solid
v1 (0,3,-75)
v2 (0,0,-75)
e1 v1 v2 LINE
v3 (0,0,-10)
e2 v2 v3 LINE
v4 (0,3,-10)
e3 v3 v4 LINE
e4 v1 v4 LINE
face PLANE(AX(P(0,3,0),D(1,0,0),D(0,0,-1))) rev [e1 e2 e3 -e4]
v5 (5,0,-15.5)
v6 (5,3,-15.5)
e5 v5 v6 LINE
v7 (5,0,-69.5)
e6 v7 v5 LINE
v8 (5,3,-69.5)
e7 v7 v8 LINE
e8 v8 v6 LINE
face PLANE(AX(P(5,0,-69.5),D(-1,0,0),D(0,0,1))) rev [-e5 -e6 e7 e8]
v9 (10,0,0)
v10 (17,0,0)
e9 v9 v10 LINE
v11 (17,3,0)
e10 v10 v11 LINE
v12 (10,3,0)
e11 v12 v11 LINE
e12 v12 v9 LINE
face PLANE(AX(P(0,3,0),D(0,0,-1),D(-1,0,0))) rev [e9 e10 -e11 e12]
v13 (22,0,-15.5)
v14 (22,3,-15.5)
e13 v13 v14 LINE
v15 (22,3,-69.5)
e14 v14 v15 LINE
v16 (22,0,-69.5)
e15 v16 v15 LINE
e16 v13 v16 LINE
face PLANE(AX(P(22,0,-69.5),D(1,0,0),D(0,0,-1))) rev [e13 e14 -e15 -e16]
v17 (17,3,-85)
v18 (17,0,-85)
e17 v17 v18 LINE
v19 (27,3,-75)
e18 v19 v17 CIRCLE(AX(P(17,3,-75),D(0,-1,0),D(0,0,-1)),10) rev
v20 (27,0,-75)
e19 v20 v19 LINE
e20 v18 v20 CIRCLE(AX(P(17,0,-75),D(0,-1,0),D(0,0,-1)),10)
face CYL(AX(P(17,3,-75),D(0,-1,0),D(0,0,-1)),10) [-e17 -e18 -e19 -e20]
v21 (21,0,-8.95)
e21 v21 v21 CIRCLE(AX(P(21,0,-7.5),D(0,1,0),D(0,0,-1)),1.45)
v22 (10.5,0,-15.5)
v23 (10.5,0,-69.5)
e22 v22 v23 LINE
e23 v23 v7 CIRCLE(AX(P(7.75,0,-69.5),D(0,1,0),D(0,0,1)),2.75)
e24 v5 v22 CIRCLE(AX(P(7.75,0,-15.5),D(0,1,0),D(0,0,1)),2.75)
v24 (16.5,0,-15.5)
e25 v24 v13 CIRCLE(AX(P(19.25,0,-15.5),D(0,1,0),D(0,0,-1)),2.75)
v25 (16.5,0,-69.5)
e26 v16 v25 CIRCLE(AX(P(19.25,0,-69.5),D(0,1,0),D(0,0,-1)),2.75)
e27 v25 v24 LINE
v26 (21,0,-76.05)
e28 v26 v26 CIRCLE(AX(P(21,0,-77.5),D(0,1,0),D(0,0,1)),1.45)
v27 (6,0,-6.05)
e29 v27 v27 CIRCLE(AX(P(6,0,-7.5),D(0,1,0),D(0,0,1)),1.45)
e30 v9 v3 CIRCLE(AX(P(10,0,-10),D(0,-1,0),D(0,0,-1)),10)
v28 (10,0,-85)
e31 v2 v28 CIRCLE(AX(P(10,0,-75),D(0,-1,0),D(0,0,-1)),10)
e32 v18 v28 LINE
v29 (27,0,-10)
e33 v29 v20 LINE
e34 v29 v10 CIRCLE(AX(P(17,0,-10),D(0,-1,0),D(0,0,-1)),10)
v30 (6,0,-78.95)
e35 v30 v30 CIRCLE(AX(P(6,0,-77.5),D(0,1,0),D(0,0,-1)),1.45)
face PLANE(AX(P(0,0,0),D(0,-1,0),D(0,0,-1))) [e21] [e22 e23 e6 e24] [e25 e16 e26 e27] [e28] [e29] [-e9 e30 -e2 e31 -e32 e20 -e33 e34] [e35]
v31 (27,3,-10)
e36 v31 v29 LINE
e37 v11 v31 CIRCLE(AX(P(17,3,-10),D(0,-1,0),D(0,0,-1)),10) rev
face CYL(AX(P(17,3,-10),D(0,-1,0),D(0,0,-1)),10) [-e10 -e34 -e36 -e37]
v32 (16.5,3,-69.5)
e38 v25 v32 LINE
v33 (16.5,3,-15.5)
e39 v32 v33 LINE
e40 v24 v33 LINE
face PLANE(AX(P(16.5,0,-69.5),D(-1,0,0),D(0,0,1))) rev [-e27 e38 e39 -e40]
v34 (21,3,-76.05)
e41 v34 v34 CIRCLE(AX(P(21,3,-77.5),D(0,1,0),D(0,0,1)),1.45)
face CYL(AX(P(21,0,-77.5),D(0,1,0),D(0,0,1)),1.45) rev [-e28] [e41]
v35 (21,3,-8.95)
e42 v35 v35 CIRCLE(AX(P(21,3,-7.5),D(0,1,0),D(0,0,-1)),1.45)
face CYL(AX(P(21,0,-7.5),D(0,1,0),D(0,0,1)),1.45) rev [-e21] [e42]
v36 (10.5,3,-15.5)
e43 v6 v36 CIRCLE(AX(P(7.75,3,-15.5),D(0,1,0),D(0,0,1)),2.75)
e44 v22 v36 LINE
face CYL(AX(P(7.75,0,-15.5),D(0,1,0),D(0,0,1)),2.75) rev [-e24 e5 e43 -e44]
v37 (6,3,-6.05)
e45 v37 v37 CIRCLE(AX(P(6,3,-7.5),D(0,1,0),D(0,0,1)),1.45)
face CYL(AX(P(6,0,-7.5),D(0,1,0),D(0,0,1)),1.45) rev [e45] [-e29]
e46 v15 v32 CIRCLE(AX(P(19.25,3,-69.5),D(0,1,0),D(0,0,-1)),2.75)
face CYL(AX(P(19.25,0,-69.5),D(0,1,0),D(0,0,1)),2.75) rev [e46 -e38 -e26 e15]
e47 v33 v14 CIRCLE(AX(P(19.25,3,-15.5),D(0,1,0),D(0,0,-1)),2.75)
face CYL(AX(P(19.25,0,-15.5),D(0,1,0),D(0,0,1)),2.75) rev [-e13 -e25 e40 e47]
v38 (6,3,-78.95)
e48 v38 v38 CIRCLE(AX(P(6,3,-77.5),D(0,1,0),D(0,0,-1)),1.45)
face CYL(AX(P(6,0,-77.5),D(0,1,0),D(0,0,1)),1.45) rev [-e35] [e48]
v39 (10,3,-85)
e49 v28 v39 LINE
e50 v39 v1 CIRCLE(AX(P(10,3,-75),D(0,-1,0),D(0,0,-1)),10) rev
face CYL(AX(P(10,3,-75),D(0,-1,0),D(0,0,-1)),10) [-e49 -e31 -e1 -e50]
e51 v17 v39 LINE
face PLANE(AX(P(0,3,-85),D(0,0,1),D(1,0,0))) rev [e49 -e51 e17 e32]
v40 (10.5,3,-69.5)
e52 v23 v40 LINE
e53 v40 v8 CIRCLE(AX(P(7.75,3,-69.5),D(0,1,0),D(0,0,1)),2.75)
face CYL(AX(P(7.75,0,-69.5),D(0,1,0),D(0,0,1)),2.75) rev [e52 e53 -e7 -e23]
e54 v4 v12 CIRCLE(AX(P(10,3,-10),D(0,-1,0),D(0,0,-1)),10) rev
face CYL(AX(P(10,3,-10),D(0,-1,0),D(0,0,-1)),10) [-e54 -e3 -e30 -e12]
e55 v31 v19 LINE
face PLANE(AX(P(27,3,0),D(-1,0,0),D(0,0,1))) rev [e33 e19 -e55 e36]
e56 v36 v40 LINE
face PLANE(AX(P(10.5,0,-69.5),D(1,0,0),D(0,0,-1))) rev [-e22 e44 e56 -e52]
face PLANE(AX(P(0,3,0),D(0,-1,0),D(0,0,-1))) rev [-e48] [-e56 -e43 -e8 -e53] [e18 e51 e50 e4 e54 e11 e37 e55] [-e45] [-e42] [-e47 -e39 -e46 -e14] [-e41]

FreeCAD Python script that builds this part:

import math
import FreeCAD as App
import Part
import Sketcher
from FreeCAD import Vector


def edges_at(feature, points):
    """Names of the edges that pass closest to the given points."""
    edges = feature.Shape.Edges
    near = lambda p: min(range(len(edges)), key=lambda i: edges[i].distToShape(Part.Vertex(*p))[0])
    return sorted({f"Edge{near(p) + 1}" for p in points})


def add_polygon(sketch, points):
    """Adds a closed chain of lines whose ends are joined by coincident constraints."""
    first, n = sketch.GeometryCount, len(points)
    for a, b in zip(points, points[1:] + points[:1]):
        sketch.addGeometry(Part.LineSegment(App.Vector(*a, 0), App.Vector(*b, 0)), False)
    for i in range(n):
        sketch.addConstraint(Sketcher.Constraint("Coincident", first + i, 2, first + (i + 1) % n, 1))

doc = App.newDocument("Part")
body = doc.addObject("PartDesign::Body", "Body")

# Sketch on XZ plane
sketch1 = body.newObject("Sketcher::SketchObject", "Sketch")
sketch1.AttachmentSupport = (doc.getObject("XZ_Plane"), [""])
sketch1.MapMode = "FlatFace"
add_polygon(sketch1, [(0, -85), (0, 0), (27, 0), (27, -85)])  # lines 0-3
sketch1.addConstraint([
    Sketcher.Constraint("Vertical", 0),
    Sketcher.Constraint("Horizontal", 1),
    Sketcher.Constraint("Vertical", 2),
    Sketcher.Constraint("Horizontal", 3),
    Sketcher.Constraint("Coincident", 0, 2, -1, 1),
    Sketcher.Constraint("DistanceX", 1, 1, 1, 2, 27.0),
    Sketcher.Constraint("DistanceY", 0, 1, 0, 2, 85.0),
])
pad1 = body.newObject("PartDesign::Pad", "Pad")
pad1.Profile = sketch1
pad1.Length = 3
pad1.Reversed = True

# Sketch on XZ plane
sketch2 = body.newObject("Sketcher::SketchObject", "Sketch001")
sketch2.AttachmentSupport = (doc.getObject("XZ_Plane"), [""])
sketch2.MapMode = "FlatFace"
sketch2.AttachmentOffset = App.Placement(Vector(0, 0, -3), App.Rotation())
sketch2.addGeometry([
    Part.Circle(Vector(6, -7.5, 0), Vector(0, 0, 1), 1.4),
    Part.Circle(Vector(21, -7.5, 0), Vector(0, 0, 1), 1.4),
    Part.Circle(Vector(21, -77.5, 0), Vector(0, 0, 1), 1.4),
    Part.Circle(Vector(6, -77.5, 0), Vector(0, 0, 1), 1.4),
], False)
sketch2.addConstraint([
    Sketcher.Constraint("Equal", 0, 1),
    Sketcher.Constraint("Equal", 1, 2),
    Sketcher.Constraint("Equal", 2, 3),
    Sketcher.Constraint("Horizontal", 0, 3, 1, 3),
    Sketcher.Constraint("Horizontal", 2, 3, 3, 3),
    Sketcher.Constraint("Vertical", 1, 3, 2, 3),
    Sketcher.Constraint("Vertical", 0, 3, 3, 3),
    Sketcher.Constraint("Diameter", 0, 2.9),
    Sketcher.Constraint("DistanceX", -1, 1, 0, 3, 6.0),
    Sketcher.Constraint("DistanceX", -1, 1, 1, 3, 21.0),
    Sketcher.Constraint("DistanceY", 2, 3, 1, 3, 70.0),
    Sketcher.Constraint("DistanceY", 0, 3, -1, 1, 7.5),
])
pocket1 = body.newObject("PartDesign::Pocket", "Pocket")
pocket1.Profile = sketch2
pocket1.Type = "ThroughAll"
pocket1.Reversed = True

# Sketch on XZ plane
sketch3 = body.newObject("Sketcher::SketchObject", "Sketch002")
sketch3.AttachmentSupport = (doc.getObject("XZ_Plane"), [""])
sketch3.MapMode = "FlatFace"
sketch3.AttachmentOffset = App.Placement(Vector(0, 0, -3), App.Rotation())
sketch3.addGeometry([
    Part.LineSegment(Vector(10.5, -15.5, 0), Vector(10.5, -69.5, 0)),  # 0
    Part.ArcOfCircle(Part.Circle(Vector(7.8, -69.5, 0), Vector(0, 0, 1), 2.8), math.radians(180), math.radians(360)),  # 1
    Part.LineSegment(Vector(5, -69.5, 0), Vector(5, -15.5, 0)),  # 2
    Part.ArcOfCircle(Part.Circle(Vector(7.8, -15.5, 0), Vector(0, 0, 1), 2.8), math.radians(0), math.radians(180)),  # 3
    Part.LineSegment(Vector(16.5, -69.5, 0), Vector(16.5, -15.5, 0)),  # 4
    Part.ArcOfCircle(Part.Circle(Vector(19.2, -15.5, 0), Vector(0, 0, 1), 2.8), math.radians(0), math.radians(180)),  # 5
    Part.LineSegment(Vector(22, -15.5, 0), Vector(22, -69.5, 0)),  # 6
    Part.ArcOfCircle(Part.Circle(Vector(19.2, -69.5, 0), Vector(0, 0, 1), 2.8), math.radians(180), math.radians(360)),  # 7
], False)
sketch3.addConstraint([
    Sketcher.Constraint("Tangent", 0, 2, 1, 2),
    Sketcher.Constraint("Tangent", 1, 1, 2, 1),
    Sketcher.Constraint("Tangent", 2, 2, 3, 2),
    Sketcher.Constraint("Tangent", 3, 1, 0, 1),
    Sketcher.Constraint("Tangent", 4, 2, 5, 2),
    Sketcher.Constraint("Tangent", 5, 1, 6, 1),
    Sketcher.Constraint("Tangent", 6, 2, 7, 2),
    Sketcher.Constraint("Tangent", 7, 1, 4, 1),
    Sketcher.Constraint("Vertical", 0),
    Sketcher.Constraint("Vertical", 2),
    Sketcher.Constraint("Vertical", 4),
    Sketcher.Constraint("Vertical", 6),
    Sketcher.Constraint("Equal", 3, 5),
    Sketcher.Constraint("Horizontal", 3, 3, 5, 3),
    Sketcher.Constraint("Horizontal", 1, 3, 7, 3),
    Sketcher.Constraint("DistanceY", 0, 2, 0, 1, 54.0),
    Sketcher.Constraint("Radius", 1, 2.75),
    Sketcher.Constraint("DistanceX", -1, 1, 1, 1, 5.0),
    Sketcher.Constraint("DistanceX", -1, 1, 5, 1, 22.0),
    Sketcher.Constraint("DistanceY", 1, 3, -1, 1, 69.5),
])
pocket2 = body.newObject("PartDesign::Pocket", "Pocket001")
pocket2.Profile = sketch3
pocket2.Type = "ThroughAll"
pocket2.Reversed = True
doc.recompute()

fillet = body.newObject("PartDesign::Fillet", "Fillet")
fillet.Base = (pocket2, edges_at(pocket2, [
    (0, 1.5, -85),
    (27, 1.5, -85),
    (27, 1.5, 0),
    (0, 1.5, 0),
]))
fillet.Radius = 10

doc.recompute()
